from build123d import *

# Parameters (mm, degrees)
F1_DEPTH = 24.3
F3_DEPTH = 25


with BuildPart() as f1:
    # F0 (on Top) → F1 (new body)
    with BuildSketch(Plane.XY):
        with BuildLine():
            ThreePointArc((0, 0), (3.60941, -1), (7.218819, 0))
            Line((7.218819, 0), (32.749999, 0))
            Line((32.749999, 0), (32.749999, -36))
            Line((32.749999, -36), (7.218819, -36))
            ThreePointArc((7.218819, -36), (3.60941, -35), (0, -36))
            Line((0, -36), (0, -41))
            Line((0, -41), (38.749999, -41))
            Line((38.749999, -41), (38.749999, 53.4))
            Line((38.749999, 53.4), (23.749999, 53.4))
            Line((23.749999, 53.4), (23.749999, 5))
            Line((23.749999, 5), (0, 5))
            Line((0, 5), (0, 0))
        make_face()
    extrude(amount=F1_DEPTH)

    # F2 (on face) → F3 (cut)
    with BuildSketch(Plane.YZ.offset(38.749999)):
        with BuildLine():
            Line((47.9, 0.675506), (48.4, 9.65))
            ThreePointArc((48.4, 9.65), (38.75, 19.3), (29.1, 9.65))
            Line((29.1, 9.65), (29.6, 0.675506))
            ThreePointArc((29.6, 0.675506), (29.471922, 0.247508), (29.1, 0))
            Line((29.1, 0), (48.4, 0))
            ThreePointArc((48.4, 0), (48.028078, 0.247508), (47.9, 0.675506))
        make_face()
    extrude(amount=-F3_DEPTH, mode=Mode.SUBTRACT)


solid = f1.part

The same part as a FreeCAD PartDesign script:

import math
import FreeCAD as App
import Part
import Sketcher
Q = App.Units.Quantity

doc = App.newDocument("Part")
body = doc.addObject("PartDesign::Body", "Body")

# Sketch on XY plane
sketch1 = body.newObject("Sketcher::SketchObject", "Sketch")
sketch1.AttachmentSupport = (doc.getObject("XY_Plane"), [""])
sketch1.MapMode = "FlatFace"
sketch1.addGeometry([
    Part.ArcOfCircle(Part.Circle(App.Vector(4, 6, 0), App.Vector(0, 0, 1), 7), math.radians(-121), math.radians(-59)),  # 0
    Part.LineSegment(App.Vector(7, 0, 0), App.Vector(33, 0, 0)),  # 1
    Part.LineSegment(App.Vector(33, 0, 0), App.Vector(33, -36, 0)),  # 2
    Part.LineSegment(App.Vector(33, -36, 0), App.Vector(7, -36, 0)),  # 3
    Part.ArcOfCircle(Part.Circle(App.Vector(4, -42, 0), App.Vector(0, 0, 1), 7), math.radians(59), math.radians(121)),  # 4
    Part.LineSegment(App.Vector(0, -36, 0), App.Vector(0, -41, 0)),  # 5
    Part.LineSegment(App.Vector(0, -41, 0), App.Vector(39, -41, 0)),  # 6
    Part.LineSegment(App.Vector(39, -41, 0), App.Vector(39, 53, 0)),  # 7
    Part.LineSegment(App.Vector(39, 53, 0), App.Vector(24, 53, 0)),  # 8
    Part.LineSegment(App.Vector(24, 53, 0), App.Vector(24, 5, 0)),  # 9
    Part.LineSegment(App.Vector(24, 5, 0), App.Vector(0, 5, 0)),  # 10
    Part.LineSegment(App.Vector(0, 5, 0), App.Vector(0, 0, 0)),  # 11
], False)
sketch1.addConstraint([
    Sketcher.Constraint("Coincident", 0, 2, 1, 1),
    Sketcher.Constraint("Coincident", 1, 2, 2, 1),
    Sketcher.Constraint("Coincident", 2, 2, 3, 1),
    Sketcher.Constraint("Coincident", 3, 2, 4, 1),
    Sketcher.Constraint("Coincident", 4, 2, 5, 1),
    Sketcher.Constraint("Coincident", 5, 2, 6, 1),
    Sketcher.Constraint("Coincident", 6, 2, 7, 1),
    Sketcher.Constraint("Coincident", 7, 2, 8, 1),
    Sketcher.Constraint("Coincident", 8, 2, 9, 1),
    Sketcher.Constraint("Coincident", 9, 2, 10, 1),
    Sketcher.Constraint("Coincident", 10, 2, 11, 1),
    Sketcher.Constraint("Coincident", 11, 2, 0, 1),
    Sketcher.Constraint("Horizontal", 1),
    Sketcher.Constraint("Vertical", 2),
    Sketcher.Constraint("Horizontal", 3),
    Sketcher.Constraint("Vertical", 5),
    Sketcher.Constraint("Horizontal", 6),
    Sketcher.Constraint("Vertical", 7),
    Sketcher.Constraint("Horizontal", 8),
    Sketcher.Constraint("Vertical", 9),
    Sketcher.Constraint("Horizontal", 10),
    Sketcher.Constraint("Vertical", 11),
    Sketcher.Constraint("Coincident", 11, 2, -1, 1),
    Sketcher.Constraint("Equal", 0, 4),
    Sketcher.Constraint("PointOnObject", 0, 2, -1),
    Sketcher.Constraint("PointOnObject", 4, 2, -2),
    Sketcher.Constraint("Horizontal", 3, 2, 4, 2),
    Sketcher.Constraint("Vertical", 0, 3, 4, 3),
    Sketcher.Constraint("Equal", 5, 11),
    Sketcher.Constraint("DistanceX", 8, 2, 8, 1, Q("15 mm")),
    Sketcher.Constraint("DistanceY", 2, 2, 2, 1, Q("36 mm")),
    Sketcher.Constraint("DistanceY", 5, 2, 5, 1, Q("5 mm")),
    Sketcher.Constraint("DistanceY", 7, 1, 7, 2, Q("94.4 mm")),
    Sketcher.Constraint("DistanceX", 2, 2, 6, 2, Q("6 mm")),
    Sketcher.Constraint("DistanceX", 6, 1, 6, 2, Q("38.749999 mm")),
    Sketcher.Constraint("Radius", 0, Q("7.013918 mm")),
    Sketcher.Constraint("DistanceX", 1, 1, 1, 2, Q("25.53118 mm")),
])
pad1 = body.newObject("PartDesign::Pad", "Pad")
pad1.Profile = sketch1
pad1.Length = 24.3

# Sketch on YZ plane
sketch2 = body.newObject("Sketcher::SketchObject", "Sketch001")
sketch2.AttachmentSupport = (doc.getObject("YZ_Plane"), [""])
sketch2.MapMode = "FlatFace"
sketch2.AttachmentOffset = App.Placement(App.Vector(0, 0, 38.749999), App.Rotation())
sketch2.addGeometry([
    Part.LineSegment(App.Vector(47.9, 0.7, 0), App.Vector(48.4, 9.7, 0)),  # 0
    Part.ArcOfCircle(Part.Circle(App.Vector(38.8, 9.7, 0), App.Vector(0, 0, 1), 9.7), math.radians(0), math.radians(180)),  # 1
    Part.LineSegment(App.Vector(29.1, 9.7, 0), App.Vector(29.6, 0.7, 0)),  # 2
    Part.ArcOfCircle(Part.Circle(App.Vector(28.9, 0.6, 0), App.Vector(0, 0, 1), 0.7), math.radians(-76), math.radians(3)),  # 3
    Part.LineSegment(App.Vector(29.1, 0, 0), App.Vector(48.4, 0, 0)),  # 4
    Part.ArcOfCircle(Part.Circle(App.Vector(48.6, 0.6, 0), App.Vector(0, 0, 1), 0.7), math.radians(177), math.radians(256)),  # 5
], False)
sketch2.addConstraint([
    Sketcher.Constraint("Coincident", 0, 2, 1, 1),
    Sketcher.Constraint("Coincident", 1, 2, 2, 1),
    Sketcher.Constraint("Tangent", 2, 2, 3, 2),
    Sketcher.Constraint("Coincident", 3, 1, 4, 1),
    Sketcher.Constraint("Coincident", 4, 2, 5, 2),
    Sketcher.Constraint("Tangent", 5, 1, 0, 1),
    Sketcher.Constraint("Horizontal", 4),
    Sketcher.Constraint("Equal", 3, 5),
    Sketcher.Constraint("PointOnObject", 3, 1, -1),
    Sketcher.Constraint("Horizontal", 3, 3, 5, 3),
    Sketcher.Constraint("Horizontal", 1, 3, 0, 2),
    Sketcher.Constraint("Horizontal", 0, 2, 1, 2),
    Sketcher.Constraint("Horizontal", 2, 2, 5, 1),
    Sketcher.Constraint("Vertical", 1, 2, 3, 1),
    Sketcher.Constraint("Radius", 1, Q("9.65 mm")),
    Sketcher.Constraint("DistanceX", -1, 1, 0, 2, Q("48.4 mm")),
    Sketcher.Constraint("DistanceX", -1, 1, 2, 2, Q("29.6 mm")),
    Sketcher.Constraint("DistanceY", -1, 1, 1, 3, Q("9.65 mm")),
    Sketcher.Constraint("Radius", 3, Q("0.657886 mm")),
])
pocket1 = body.newObject("PartDesign::Pocket", "Pocket")
pocket1.Profile = sketch2
pocket1.Length = 25

doc.recompute()
